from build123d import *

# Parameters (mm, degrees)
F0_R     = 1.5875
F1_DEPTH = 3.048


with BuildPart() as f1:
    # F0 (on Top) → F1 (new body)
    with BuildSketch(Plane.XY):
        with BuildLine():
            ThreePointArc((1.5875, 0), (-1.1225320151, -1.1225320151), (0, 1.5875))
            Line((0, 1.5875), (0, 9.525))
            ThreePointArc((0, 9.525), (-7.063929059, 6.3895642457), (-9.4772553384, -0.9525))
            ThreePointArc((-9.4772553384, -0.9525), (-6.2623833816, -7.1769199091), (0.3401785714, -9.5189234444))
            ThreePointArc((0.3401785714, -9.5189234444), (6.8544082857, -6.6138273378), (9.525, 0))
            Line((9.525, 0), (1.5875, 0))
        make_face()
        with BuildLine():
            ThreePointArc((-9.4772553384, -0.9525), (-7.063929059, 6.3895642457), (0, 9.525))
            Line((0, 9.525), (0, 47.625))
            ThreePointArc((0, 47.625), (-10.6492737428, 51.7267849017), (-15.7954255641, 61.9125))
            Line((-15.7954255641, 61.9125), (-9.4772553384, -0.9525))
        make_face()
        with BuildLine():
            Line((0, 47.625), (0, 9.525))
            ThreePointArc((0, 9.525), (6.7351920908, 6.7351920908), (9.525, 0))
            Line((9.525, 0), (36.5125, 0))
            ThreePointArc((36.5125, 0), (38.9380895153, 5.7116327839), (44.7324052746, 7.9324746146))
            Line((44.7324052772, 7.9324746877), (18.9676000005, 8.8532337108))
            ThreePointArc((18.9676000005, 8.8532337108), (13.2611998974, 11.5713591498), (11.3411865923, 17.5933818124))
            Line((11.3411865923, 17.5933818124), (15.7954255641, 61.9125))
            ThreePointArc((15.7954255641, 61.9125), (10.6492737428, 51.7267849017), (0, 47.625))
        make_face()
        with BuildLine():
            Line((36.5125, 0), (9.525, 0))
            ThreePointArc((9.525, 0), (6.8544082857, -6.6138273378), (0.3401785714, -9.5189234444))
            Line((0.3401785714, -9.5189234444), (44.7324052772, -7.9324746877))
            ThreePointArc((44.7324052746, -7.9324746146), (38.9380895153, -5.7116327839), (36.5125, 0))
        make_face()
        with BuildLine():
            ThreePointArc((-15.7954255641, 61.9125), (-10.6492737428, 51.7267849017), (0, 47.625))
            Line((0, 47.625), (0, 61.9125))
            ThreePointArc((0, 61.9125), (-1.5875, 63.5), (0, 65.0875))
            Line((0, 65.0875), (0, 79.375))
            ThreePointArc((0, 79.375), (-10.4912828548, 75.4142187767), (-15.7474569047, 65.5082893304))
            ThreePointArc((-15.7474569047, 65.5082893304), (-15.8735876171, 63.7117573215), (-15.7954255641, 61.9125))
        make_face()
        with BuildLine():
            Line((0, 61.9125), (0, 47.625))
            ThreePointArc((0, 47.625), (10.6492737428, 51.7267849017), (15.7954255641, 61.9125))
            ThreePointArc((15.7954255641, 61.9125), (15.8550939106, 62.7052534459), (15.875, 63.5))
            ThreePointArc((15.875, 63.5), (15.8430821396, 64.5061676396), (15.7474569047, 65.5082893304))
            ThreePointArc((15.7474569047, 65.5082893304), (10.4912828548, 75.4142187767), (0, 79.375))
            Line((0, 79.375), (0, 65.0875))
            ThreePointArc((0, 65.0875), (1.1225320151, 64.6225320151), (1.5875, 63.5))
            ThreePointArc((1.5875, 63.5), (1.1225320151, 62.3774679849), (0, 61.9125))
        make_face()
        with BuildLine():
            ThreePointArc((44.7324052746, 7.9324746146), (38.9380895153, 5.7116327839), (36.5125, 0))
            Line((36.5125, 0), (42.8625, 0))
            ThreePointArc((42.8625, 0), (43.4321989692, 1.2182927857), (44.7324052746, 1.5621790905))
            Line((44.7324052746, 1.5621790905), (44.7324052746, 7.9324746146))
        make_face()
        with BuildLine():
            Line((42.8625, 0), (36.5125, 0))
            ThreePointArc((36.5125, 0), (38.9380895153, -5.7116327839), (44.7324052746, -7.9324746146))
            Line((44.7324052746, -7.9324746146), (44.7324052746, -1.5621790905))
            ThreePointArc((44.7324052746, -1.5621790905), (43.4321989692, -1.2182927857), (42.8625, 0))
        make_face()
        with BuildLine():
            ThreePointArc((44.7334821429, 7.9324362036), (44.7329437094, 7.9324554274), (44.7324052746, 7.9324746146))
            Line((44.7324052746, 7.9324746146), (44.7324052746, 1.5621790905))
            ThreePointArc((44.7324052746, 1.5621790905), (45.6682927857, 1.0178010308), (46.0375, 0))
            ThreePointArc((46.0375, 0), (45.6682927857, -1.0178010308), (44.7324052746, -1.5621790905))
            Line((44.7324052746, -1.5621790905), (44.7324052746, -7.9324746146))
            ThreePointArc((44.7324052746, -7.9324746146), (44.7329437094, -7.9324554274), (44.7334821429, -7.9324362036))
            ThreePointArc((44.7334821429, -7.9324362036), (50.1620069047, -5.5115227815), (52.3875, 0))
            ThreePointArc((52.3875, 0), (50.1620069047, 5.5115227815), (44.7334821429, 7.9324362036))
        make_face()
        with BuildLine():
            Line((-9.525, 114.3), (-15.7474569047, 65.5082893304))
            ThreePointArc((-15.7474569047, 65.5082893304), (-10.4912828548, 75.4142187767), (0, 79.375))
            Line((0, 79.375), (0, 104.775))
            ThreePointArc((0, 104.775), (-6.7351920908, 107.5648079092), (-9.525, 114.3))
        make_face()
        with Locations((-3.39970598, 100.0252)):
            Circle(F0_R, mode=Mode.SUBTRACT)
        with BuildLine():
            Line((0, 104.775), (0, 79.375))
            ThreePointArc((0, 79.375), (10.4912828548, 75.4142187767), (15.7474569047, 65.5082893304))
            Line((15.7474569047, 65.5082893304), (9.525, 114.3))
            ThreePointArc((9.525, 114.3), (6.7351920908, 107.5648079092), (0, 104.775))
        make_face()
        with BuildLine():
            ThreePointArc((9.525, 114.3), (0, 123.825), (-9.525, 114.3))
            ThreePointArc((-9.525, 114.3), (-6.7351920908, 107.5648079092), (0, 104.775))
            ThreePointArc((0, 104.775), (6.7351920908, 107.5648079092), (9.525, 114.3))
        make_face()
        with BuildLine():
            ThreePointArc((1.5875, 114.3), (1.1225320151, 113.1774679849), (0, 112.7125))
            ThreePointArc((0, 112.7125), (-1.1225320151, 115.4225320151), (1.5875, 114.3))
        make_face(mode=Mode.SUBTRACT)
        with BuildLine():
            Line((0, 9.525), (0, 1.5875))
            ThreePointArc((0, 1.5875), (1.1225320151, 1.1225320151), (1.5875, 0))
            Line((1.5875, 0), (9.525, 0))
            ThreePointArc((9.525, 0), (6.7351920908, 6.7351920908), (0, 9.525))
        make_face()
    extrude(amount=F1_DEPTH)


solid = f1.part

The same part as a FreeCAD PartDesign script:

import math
import FreeCAD as App
import Part
import Sketcher

V = App.Vector
Q = App.Units.Quantity

doc = App.newDocument("Part")
body = doc.addObject("PartDesign::Body", "Body")

sketch1 = doc.addObject("Sketcher::SketchObject", "Sketch")
body.addObject(sketch1)
sketch1.AttachmentSupport = (doc.XY_Plane, [""])
sketch1.MapMode = "FlatFace"
sketch1.addGeometry(Part.ArcOfCircle(Part.Circle(V(0, 0, 0), V(0, 0, 1), 9.525), math.radians(-174), math.radians(-88)), False)
sketch1.addGeometry(Part.LineSegment(V(0.3402, -9.5189, 0), V(44.7324, -7.9325, 0)), False)
sketch1.addGeometry(Part.ArcOfCircle(Part.Circle(V(44.4504, -0.0113, 0), V(0, 0, 1), 7.9262), math.radians(-87.96), math.radians(-87.95)), False)
sketch1.addGeometry(Part.ArcOfCircle(Part.Circle(V(44.45, 0, 0), V(0, 0, 1), 7.9375), math.radians(-88), math.radians(0)), False)
sketch1.addGeometry(Part.ArcOfCircle(Part.Circle(V(44.45, 0, 0), V(0, 0, 1), 7.9375), math.radians(0), math.radians(88)), False)
sketch1.addGeometry(Part.ArcOfCircle(Part.Circle(V(44.4504, 0.0113, 0), V(0, 0, 1), 7.9262), math.radians(87.95), math.radians(87.96)), False)
sketch1.addGeometry(Part.LineSegment(V(44.7324, 7.9325, 0), V(18.9676, 8.8532, 0)), False)
sketch1.addGeometry(Part.ArcOfCircle(Part.Circle(V(19.2515, 16.7984, 0), V(0, 0, 1), 7.9502), math.radians(174), math.radians(268)), False)
sketch1.addGeometry(Part.LineSegment(V(11.3412, 17.5934, 0), V(15.7954, 61.9125, 0)), False)
sketch1.addGeometry(Part.ArcOfCircle(Part.Circle(V(0, 63.5, 0), V(0, 0, 1), 15.875), math.radians(-5.74), math.radians(0)), False)
sketch1.addGeometry(Part.ArcOfCircle(Part.Circle(V(0, 63.5, 0), V(0, 0, 1), 15.875), math.radians(0), math.radians(7.27)), False)
sketch1.addGeometry(Part.LineSegment(V(15.7475, 65.5083, 0), V(9.525, 114.3, 0)), False)
sketch1.addGeometry(Part.ArcOfCircle(Part.Circle(V(0, 114.3, 0), V(0, 0, 1), 9.525), math.radians(0), math.radians(180)), False)
sketch1.addGeometry(Part.LineSegment(V(-9.525, 114.3, 0), V(-15.7475, 65.5083, 0)), False)
sketch1.addGeometry(Part.ArcOfCircle(Part.Circle(V(0, 63.5, 0), V(0, 0, 1), 15.875), math.radians(172.73), math.radians(185.74)), False)
sketch1.addGeometry(Part.LineSegment(V(-15.7954, 61.9125, 0), V(-9.4773, -0.9525, 0)), False)
sketch1.addGeometry(Part.ArcOfCircle(Part.Circle(V(0, 0, 0), V(0, 0, 1), 1.5875), math.radians(90), math.radians(360)), False)
sketch1.addGeometry(Part.ArcOfCircle(Part.Circle(V(0, 0, 0), V(0, 0, 1), 1.5875), math.radians(0), math.radians(90)), False)
sketch1.addGeometry(Part.ArcOfCircle(Part.Circle(V(44.45, 0, 0), V(0, 0, 1), 1.5875), math.radians(180), math.radians(280)), False)
sketch1.addGeometry(Part.ArcOfCircle(Part.Circle(V(44.45, 0, 0), V(0, 0, 1), 1.5875), math.radians(80), math.radians(180)), False)
sketch1.addGeometry(Part.ArcOfCircle(Part.Circle(V(44.45, 0, 0), V(0, 0, 1), 1.5875), math.radians(0), math.radians(80)), False)
sketch1.addGeometry(Part.ArcOfCircle(Part.Circle(V(44.45, 0, 0), V(0, 0, 1), 1.5875), math.radians(-80), math.radians(0)), False)
sketch1.addGeometry(Part.ArcOfCircle(Part.Circle(V(0, 63.5, 0), V(0, 0, 1), 1.5875), math.radians(90), math.radians(270)), False)
sketch1.addGeometry(Part.ArcOfCircle(Part.Circle(V(0, 63.5, 0), V(0, 0, 1), 1.5875), math.radians(0), math.radians(90)), False)
sketch1.addGeometry(Part.ArcOfCircle(Part.Circle(V(0, 63.5, 0), V(0, 0, 1), 1.5875), math.radians(-90), math.radians(0)), False)
sketch1.addGeometry(Part.Circle(V(-3.3997, 100.0252, 0), V(0, 0, 1), 1.5875), False)
sketch1.addGeometry(Part.ArcOfCircle(Part.Circle(V(0, 114.3, 0), V(0, 0, 1), 1.5875), math.radians(0), math.radians(270)), False)
sketch1.addGeometry(Part.ArcOfCircle(Part.Circle(V(0, 114.3, 0), V(0, 0, 1), 1.5875), math.radians(-90), math.radians(0)), False)
sketch1.addConstraint(Sketcher.Constraint("Tangent", 0, 2, 1, 1))
sketch1.addConstraint(Sketcher.Constraint("Coincident", 1, 2, 2, 1))
sketch1.addConstraint(Sketcher.Constraint("Tangent", 2, 2, 3, 1))
sketch1.addConstraint(Sketcher.Constraint("Tangent", 3, 2, 4, 1))
sketch1.addConstraint(Sketcher.Constraint("Tangent", 4, 2, 5, 1))
sketch1.addConstraint(Sketcher.Constraint("Coincident", 5, 2, 6, 1))
sketch1.addConstraint(Sketcher.Constraint("Tangent", 6, 2, 7, 2))
sketch1.addConstraint(Sketcher.Constraint("Tangent", 7, 1, 8, 1))
sketch1.addConstraint(Sketcher.Constraint("Tangent", 8, 2, 9, 1))
sketch1.addConstraint(Sketcher.Constraint("Tangent", 9, 2, 10, 1))
sketch1.addConstraint(Sketcher.Constraint("Tangent", 10, 2, 11, 1))
sketch1.addConstraint(Sketcher.Constraint("Coincident", 11, 2, 12, 1))
sketch1.addConstraint(Sketcher.Constraint("Coincident", 12, 2, 13, 1))
sketch1.addConstraint(Sketcher.Constraint("Tangent", 13, 2, 14, 1))
sketch1.addConstraint(Sketcher.Constraint("Tangent", 14, 2, 15, 1))
sketch1.addConstraint(Sketcher.Constraint("Tangent", 15, 2, 0, 1))
sketch1.addConstraint(Sketcher.Constraint("Tangent", 16, 1, 17, 2))
sketch1.addConstraint(Sketcher.Constraint("Coincident", 17, 1, 16, 2))
sketch1.addConstraint(Sketcher.Constraint("Tangent", 18, 1, 19, 2))
sketch1.addConstraint(Sketcher.Constraint("Tangent", 19, 1, 20, 2))
sketch1.addConstraint(Sketcher.Constraint("Tangent", 20, 1, 21, 2))
sketch1.addConstraint(Sketcher.Constraint("Tangent", 21, 1, 18, 2))
sketch1.addConstraint(Sketcher.Constraint("Tangent", 22, 1, 23, 2))
sketch1.addConstraint(Sketcher.Constraint("Tangent", 23, 1, 24, 2))
sketch1.addConstraint(Sketcher.Constraint("Tangent", 24, 1, 22, 2))
sketch1.addConstraint(Sketcher.Constraint("Tangent", 26, 1, 27, 2))
sketch1.addConstraint(Sketcher.Constraint("Coincident", 27, 1, 26, 2))
sketch1.addConstraint(Sketcher.Constraint("Coincident", 0, 3, -1, 1))
sketch1.addConstraint(Sketcher.Constraint("Coincident", 16, 3, -1, 1))
sketch1.addConstraint(Sketcher.Constraint("Coincident", 14, 3, 9, 3))
sketch1.addConstraint(Sketcher.Constraint("Coincident", 18, 3, 3, 3))
sketch1.addConstraint(Sketcher.Constraint("Coincident", 22, 3, 9, 3))
sketch1.addConstraint(Sketcher.Constraint("Coincident", 26, 3, 12, 3))
sketch1.addConstraint(Sketcher.Constraint("Equal", 3, 4))
sketch1.addConstraint(Sketcher.Constraint("Equal", 2, 5))
sketch1.addConstraint(Sketcher.Constraint("Equal", 9, 10))
sketch1.addConstraint(Sketcher.Constraint("Equal", 0, 12))
sketch1.addConstraint(Sketcher.Constraint("Equal", 10, 14))
sketch1.addConstraint(Sketcher.Constraint("Equal", 17, 18))
sketch1.addConstraint(Sketcher.Constraint("Equal", 18, 19))
sketch1.addConstraint(Sketcher.Constraint("Equal", 21, 22))
sketch1.addConstraint(Sketcher.Constraint("Equal", 24, 25))
sketch1.addConstraint(Sketcher.Constraint("Equal", 25, 26))
sketch1.addConstraint(Sketcher.Constraint("Symmetric", 11, 2, 12, 2, -2))
sketch1.addConstraint(Sketcher.Constraint("Symmetric", 8, 2, 14, 2, -2))
sketch1.addConstraint(Sketcher.Constraint("Symmetric", 2, 3, 5, 3, -1))
sketch1.addConstraint(Sketcher.Constraint("PointOnObject", 3, 2, -1))
sketch1.addConstraint(Sketcher.Constraint("PointOnObject", 16, 1, -2))
sketch1.addConstraint(Sketcher.Constraint("PointOnObject", 17, 1, -1))
sketch1.addConstraint(Sketcher.Constraint("PointOnObject", 18, 1, -1))
sketch1.addConstraint(Sketcher.Constraint("PointOnObject", 20, 1, -1))
sketch1.addConstraint(Sketcher.Constraint("PointOnObject", 22, 1, -2))
sketch1.addConstraint(Sketcher.Constraint("PointOnObject", 24, 1, -2))
sketch1.addConstraint(Sketcher.Constraint("PointOnObject", 27, 1, -2))
sketch1.addConstraint(Sketcher.Constraint("Horizontal", 24, 3, 9, 2))
sketch1.addConstraint(Sketcher.Constraint("Horizontal", 27, 3, 11, 2))
sketch1.addConstraint(Sketcher.Constraint("Horizontal", 9, 2, 23, 1))
sketch1.addConstraint(Sketcher.Constraint("Horizontal", 14, 2, 24, 1))
sketch1.addConstraint(Sketcher.Constraint("Horizontal", 12, 2, 26, 1))
sketch1.addConstraint(Sketcher.Constraint("Vertical", 1, 2, 5, 2))
sketch1.addConstraint(Sketcher.Constraint("Vertical", 5, 2, 19, 1))
sketch1.addConstraint(Sketcher.Constraint("Vertical", 19, 1, 21, 1))
sketch1.addConstraint(Sketcher.Constraint("Diameter", 25, Q("0.125 in")))
sketch1.addConstraint(Sketcher.Constraint("Radius", 0, Q("0.375 in")))
sketch1.addConstraint(Sketcher.Constraint("Radius", 3, Q("0.3125 in")))
sketch1.addConstraint(Sketcher.Constraint("Radius", 7, Q("0.313 in")))
sketch1.addConstraint(Sketcher.Constraint("Radius", 9, Q("0.625 in")))
sketch1.addConstraint(Sketcher.Constraint("DistanceY", 9, 3, 12, 3, Q("2 in")))
sketch1.addConstraint(Sketcher.Constraint("DistanceX", -1, 1, 3, 3, Q("1.75 in")))
sketch1.addConstraint(Sketcher.Constraint("DistanceY", -1, 1, 25, 3, Q("3.938 in")))
sketch1.addConstraint(Sketcher.Constraint("Radius", 2, Q("7.926155 mm")))
sketch1.addConstraint(Sketcher.Constraint("DistanceX", -1, 1, 6, 2, Q("18.9676 mm")))
sketch1.addConstraint(Sketcher.Constraint("DistanceX", 2, 3, 1, 2, Q("0.282001 mm")))
sketch1.addConstraint(Sketcher.Constraint("DistanceY", 2, 2, 2, 3, Q("7.921098 mm")))
sketch1.addConstraint(Sketcher.Constraint("DistanceX", 25, 3, -1, 1, Q("3.399706 mm")))
pad1 = doc.addObject("PartDesign::Pad", "Pad")
body.addObject(pad1)
pad1.Profile = sketch1
pad1.Length = Q("0.12 in")

doc.recompute()
